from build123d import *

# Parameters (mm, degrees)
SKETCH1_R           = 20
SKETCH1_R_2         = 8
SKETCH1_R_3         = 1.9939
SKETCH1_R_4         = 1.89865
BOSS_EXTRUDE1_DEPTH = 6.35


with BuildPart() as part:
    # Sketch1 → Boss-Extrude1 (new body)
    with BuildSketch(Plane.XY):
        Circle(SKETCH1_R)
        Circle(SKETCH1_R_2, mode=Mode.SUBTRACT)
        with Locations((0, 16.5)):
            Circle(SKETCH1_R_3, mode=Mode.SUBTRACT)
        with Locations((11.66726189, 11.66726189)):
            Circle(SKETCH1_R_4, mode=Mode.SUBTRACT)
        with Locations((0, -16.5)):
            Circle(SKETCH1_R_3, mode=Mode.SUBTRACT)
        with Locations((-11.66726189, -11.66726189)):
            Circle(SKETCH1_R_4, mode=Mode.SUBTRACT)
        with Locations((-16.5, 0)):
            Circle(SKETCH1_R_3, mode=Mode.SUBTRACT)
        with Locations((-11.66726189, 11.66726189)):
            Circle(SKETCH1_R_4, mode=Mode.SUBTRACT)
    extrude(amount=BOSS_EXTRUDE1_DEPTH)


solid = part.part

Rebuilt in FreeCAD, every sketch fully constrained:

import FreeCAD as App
import Part
import Sketcher
from FreeCAD import Vector

doc = App.newDocument("Part")
params = doc.addObject("Spreadsheet::Sheet", "Params")
for row, (alias, value) in enumerate([
    ("sketch1_diameter", "40 mm"),
    ("sketch1_diameter2", "16 mm"),
    ("pad1_length", "6.35 mm"),
], start=1):
    params.set(f"A{row}", alias)
    params.set(f"B{row}", "=" + value)
    params.setAlias(f"B{row}", alias)

body = doc.addObject("PartDesign::Body", "Body")

# Sketch on XY plane
sketch1 = body.newObject("Sketcher::SketchObject", "Sketch")
sketch1.AttachmentSupport = (doc.getObject("XY_Plane"), [""])
sketch1.MapMode = "FlatFace"
sketch1.addGeometry(Part.Circle(Vector(0, 0, 0), Vector(0, 0, 1), 20), False)
sketch1.addGeometry(Part.Circle(Vector(-11.667262, -11.667262, 0), Vector(0, 0, 1), 1.89865), False)
sketch1.addGeometry(Part.Circle(Vector(0, -16.5, 0), Vector(0, 0, 1), 1.9939), False)
sketch1.addGeometry(Part.Circle(Vector(0, 0, 0), Vector(0, 0, 1), 8), False)
sketch1.addGeometry(Part.Circle(Vector(-16.5, 0, 0), Vector(0, 0, 1), 1.9939), False)
sketch1.addGeometry(Part.Circle(Vector(-11.667262, 11.667262, 0), Vector(0, 0, 1), 1.89865), False)
sketch1.addGeometry(Part.Circle(Vector(0, 16.5, 0), Vector(0, 0, 1), 1.9939), False)
sketch1.addGeometry(Part.Circle(Vector(11.667262, 11.667262, 0), Vector(0, 0, 1), 1.89865), False)
sketch1.addConstraint(Sketcher.Constraint("Coincident", 0, 3, -1, 1))
sketch1.addConstraint(Sketcher.Constraint("Coincident", 3, 3, -1, 1))
sketch1.addConstraint(Sketcher.Constraint("Equal", 2, 4))
sketch1.addConstraint(Sketcher.Constraint("Equal", 1, 5))
sketch1.addConstraint(Sketcher.Constraint("Equal", 4, 6))
sketch1.addConstraint(Sketcher.Constraint("Equal", 5, 7))
sketch1.addConstraint(Sketcher.Constraint("Symmetric", 2, 3, 6, 3, -1, 1))
sketch1.addConstraint(Sketcher.Constraint("Symmetric", 1, 3, 7, 3, -1, 1))
sketch1.addConstraint(Sketcher.Constraint("Symmetric", 5, 3, 7, 3, -2))
sketch1.addConstraint(Sketcher.Constraint("PointOnObject", 2, 3, -2))
sketch1.addConstraint(Sketcher.Constraint("PointOnObject", 4, 3, -1))
sketch1.addConstraint(Sketcher.Constraint("Diameter", 0, 40.0))
sketch1.addConstraint(Sketcher.Constraint("Diameter", 3, 16.0))
sketch1.addConstraint(Sketcher.Constraint("Diameter", 1, 3.7973))
sketch1.addConstraint(Sketcher.Constraint("Diameter", 2, 3.9878))
sketch1.addConstraint(Sketcher.Constraint("DistanceY", 2, 3, -1, 1, 16.5))
sketch1.addConstraint(Sketcher.Constraint("DistanceX", 4, 3, -1, 1, 16.5))
sketch1.addConstraint(Sketcher.Constraint("DistanceX", 1, 3, -1, 1, 11.667262))
sketch1.addConstraint(Sketcher.Constraint("DistanceY", 1, 3, -1, 1, 11.667262))
sketch1.setExpression("Constraints[11]", "Params.sketch1_diameter")
sketch1.setExpression("Constraints[12]", "Params.sketch1_diameter2")
pad1 = body.newObject("PartDesign::Pad", "Pad")
pad1.Profile = sketch1
pad1.setExpression("Length", "Params.pad1_length")

doc.recompute()
